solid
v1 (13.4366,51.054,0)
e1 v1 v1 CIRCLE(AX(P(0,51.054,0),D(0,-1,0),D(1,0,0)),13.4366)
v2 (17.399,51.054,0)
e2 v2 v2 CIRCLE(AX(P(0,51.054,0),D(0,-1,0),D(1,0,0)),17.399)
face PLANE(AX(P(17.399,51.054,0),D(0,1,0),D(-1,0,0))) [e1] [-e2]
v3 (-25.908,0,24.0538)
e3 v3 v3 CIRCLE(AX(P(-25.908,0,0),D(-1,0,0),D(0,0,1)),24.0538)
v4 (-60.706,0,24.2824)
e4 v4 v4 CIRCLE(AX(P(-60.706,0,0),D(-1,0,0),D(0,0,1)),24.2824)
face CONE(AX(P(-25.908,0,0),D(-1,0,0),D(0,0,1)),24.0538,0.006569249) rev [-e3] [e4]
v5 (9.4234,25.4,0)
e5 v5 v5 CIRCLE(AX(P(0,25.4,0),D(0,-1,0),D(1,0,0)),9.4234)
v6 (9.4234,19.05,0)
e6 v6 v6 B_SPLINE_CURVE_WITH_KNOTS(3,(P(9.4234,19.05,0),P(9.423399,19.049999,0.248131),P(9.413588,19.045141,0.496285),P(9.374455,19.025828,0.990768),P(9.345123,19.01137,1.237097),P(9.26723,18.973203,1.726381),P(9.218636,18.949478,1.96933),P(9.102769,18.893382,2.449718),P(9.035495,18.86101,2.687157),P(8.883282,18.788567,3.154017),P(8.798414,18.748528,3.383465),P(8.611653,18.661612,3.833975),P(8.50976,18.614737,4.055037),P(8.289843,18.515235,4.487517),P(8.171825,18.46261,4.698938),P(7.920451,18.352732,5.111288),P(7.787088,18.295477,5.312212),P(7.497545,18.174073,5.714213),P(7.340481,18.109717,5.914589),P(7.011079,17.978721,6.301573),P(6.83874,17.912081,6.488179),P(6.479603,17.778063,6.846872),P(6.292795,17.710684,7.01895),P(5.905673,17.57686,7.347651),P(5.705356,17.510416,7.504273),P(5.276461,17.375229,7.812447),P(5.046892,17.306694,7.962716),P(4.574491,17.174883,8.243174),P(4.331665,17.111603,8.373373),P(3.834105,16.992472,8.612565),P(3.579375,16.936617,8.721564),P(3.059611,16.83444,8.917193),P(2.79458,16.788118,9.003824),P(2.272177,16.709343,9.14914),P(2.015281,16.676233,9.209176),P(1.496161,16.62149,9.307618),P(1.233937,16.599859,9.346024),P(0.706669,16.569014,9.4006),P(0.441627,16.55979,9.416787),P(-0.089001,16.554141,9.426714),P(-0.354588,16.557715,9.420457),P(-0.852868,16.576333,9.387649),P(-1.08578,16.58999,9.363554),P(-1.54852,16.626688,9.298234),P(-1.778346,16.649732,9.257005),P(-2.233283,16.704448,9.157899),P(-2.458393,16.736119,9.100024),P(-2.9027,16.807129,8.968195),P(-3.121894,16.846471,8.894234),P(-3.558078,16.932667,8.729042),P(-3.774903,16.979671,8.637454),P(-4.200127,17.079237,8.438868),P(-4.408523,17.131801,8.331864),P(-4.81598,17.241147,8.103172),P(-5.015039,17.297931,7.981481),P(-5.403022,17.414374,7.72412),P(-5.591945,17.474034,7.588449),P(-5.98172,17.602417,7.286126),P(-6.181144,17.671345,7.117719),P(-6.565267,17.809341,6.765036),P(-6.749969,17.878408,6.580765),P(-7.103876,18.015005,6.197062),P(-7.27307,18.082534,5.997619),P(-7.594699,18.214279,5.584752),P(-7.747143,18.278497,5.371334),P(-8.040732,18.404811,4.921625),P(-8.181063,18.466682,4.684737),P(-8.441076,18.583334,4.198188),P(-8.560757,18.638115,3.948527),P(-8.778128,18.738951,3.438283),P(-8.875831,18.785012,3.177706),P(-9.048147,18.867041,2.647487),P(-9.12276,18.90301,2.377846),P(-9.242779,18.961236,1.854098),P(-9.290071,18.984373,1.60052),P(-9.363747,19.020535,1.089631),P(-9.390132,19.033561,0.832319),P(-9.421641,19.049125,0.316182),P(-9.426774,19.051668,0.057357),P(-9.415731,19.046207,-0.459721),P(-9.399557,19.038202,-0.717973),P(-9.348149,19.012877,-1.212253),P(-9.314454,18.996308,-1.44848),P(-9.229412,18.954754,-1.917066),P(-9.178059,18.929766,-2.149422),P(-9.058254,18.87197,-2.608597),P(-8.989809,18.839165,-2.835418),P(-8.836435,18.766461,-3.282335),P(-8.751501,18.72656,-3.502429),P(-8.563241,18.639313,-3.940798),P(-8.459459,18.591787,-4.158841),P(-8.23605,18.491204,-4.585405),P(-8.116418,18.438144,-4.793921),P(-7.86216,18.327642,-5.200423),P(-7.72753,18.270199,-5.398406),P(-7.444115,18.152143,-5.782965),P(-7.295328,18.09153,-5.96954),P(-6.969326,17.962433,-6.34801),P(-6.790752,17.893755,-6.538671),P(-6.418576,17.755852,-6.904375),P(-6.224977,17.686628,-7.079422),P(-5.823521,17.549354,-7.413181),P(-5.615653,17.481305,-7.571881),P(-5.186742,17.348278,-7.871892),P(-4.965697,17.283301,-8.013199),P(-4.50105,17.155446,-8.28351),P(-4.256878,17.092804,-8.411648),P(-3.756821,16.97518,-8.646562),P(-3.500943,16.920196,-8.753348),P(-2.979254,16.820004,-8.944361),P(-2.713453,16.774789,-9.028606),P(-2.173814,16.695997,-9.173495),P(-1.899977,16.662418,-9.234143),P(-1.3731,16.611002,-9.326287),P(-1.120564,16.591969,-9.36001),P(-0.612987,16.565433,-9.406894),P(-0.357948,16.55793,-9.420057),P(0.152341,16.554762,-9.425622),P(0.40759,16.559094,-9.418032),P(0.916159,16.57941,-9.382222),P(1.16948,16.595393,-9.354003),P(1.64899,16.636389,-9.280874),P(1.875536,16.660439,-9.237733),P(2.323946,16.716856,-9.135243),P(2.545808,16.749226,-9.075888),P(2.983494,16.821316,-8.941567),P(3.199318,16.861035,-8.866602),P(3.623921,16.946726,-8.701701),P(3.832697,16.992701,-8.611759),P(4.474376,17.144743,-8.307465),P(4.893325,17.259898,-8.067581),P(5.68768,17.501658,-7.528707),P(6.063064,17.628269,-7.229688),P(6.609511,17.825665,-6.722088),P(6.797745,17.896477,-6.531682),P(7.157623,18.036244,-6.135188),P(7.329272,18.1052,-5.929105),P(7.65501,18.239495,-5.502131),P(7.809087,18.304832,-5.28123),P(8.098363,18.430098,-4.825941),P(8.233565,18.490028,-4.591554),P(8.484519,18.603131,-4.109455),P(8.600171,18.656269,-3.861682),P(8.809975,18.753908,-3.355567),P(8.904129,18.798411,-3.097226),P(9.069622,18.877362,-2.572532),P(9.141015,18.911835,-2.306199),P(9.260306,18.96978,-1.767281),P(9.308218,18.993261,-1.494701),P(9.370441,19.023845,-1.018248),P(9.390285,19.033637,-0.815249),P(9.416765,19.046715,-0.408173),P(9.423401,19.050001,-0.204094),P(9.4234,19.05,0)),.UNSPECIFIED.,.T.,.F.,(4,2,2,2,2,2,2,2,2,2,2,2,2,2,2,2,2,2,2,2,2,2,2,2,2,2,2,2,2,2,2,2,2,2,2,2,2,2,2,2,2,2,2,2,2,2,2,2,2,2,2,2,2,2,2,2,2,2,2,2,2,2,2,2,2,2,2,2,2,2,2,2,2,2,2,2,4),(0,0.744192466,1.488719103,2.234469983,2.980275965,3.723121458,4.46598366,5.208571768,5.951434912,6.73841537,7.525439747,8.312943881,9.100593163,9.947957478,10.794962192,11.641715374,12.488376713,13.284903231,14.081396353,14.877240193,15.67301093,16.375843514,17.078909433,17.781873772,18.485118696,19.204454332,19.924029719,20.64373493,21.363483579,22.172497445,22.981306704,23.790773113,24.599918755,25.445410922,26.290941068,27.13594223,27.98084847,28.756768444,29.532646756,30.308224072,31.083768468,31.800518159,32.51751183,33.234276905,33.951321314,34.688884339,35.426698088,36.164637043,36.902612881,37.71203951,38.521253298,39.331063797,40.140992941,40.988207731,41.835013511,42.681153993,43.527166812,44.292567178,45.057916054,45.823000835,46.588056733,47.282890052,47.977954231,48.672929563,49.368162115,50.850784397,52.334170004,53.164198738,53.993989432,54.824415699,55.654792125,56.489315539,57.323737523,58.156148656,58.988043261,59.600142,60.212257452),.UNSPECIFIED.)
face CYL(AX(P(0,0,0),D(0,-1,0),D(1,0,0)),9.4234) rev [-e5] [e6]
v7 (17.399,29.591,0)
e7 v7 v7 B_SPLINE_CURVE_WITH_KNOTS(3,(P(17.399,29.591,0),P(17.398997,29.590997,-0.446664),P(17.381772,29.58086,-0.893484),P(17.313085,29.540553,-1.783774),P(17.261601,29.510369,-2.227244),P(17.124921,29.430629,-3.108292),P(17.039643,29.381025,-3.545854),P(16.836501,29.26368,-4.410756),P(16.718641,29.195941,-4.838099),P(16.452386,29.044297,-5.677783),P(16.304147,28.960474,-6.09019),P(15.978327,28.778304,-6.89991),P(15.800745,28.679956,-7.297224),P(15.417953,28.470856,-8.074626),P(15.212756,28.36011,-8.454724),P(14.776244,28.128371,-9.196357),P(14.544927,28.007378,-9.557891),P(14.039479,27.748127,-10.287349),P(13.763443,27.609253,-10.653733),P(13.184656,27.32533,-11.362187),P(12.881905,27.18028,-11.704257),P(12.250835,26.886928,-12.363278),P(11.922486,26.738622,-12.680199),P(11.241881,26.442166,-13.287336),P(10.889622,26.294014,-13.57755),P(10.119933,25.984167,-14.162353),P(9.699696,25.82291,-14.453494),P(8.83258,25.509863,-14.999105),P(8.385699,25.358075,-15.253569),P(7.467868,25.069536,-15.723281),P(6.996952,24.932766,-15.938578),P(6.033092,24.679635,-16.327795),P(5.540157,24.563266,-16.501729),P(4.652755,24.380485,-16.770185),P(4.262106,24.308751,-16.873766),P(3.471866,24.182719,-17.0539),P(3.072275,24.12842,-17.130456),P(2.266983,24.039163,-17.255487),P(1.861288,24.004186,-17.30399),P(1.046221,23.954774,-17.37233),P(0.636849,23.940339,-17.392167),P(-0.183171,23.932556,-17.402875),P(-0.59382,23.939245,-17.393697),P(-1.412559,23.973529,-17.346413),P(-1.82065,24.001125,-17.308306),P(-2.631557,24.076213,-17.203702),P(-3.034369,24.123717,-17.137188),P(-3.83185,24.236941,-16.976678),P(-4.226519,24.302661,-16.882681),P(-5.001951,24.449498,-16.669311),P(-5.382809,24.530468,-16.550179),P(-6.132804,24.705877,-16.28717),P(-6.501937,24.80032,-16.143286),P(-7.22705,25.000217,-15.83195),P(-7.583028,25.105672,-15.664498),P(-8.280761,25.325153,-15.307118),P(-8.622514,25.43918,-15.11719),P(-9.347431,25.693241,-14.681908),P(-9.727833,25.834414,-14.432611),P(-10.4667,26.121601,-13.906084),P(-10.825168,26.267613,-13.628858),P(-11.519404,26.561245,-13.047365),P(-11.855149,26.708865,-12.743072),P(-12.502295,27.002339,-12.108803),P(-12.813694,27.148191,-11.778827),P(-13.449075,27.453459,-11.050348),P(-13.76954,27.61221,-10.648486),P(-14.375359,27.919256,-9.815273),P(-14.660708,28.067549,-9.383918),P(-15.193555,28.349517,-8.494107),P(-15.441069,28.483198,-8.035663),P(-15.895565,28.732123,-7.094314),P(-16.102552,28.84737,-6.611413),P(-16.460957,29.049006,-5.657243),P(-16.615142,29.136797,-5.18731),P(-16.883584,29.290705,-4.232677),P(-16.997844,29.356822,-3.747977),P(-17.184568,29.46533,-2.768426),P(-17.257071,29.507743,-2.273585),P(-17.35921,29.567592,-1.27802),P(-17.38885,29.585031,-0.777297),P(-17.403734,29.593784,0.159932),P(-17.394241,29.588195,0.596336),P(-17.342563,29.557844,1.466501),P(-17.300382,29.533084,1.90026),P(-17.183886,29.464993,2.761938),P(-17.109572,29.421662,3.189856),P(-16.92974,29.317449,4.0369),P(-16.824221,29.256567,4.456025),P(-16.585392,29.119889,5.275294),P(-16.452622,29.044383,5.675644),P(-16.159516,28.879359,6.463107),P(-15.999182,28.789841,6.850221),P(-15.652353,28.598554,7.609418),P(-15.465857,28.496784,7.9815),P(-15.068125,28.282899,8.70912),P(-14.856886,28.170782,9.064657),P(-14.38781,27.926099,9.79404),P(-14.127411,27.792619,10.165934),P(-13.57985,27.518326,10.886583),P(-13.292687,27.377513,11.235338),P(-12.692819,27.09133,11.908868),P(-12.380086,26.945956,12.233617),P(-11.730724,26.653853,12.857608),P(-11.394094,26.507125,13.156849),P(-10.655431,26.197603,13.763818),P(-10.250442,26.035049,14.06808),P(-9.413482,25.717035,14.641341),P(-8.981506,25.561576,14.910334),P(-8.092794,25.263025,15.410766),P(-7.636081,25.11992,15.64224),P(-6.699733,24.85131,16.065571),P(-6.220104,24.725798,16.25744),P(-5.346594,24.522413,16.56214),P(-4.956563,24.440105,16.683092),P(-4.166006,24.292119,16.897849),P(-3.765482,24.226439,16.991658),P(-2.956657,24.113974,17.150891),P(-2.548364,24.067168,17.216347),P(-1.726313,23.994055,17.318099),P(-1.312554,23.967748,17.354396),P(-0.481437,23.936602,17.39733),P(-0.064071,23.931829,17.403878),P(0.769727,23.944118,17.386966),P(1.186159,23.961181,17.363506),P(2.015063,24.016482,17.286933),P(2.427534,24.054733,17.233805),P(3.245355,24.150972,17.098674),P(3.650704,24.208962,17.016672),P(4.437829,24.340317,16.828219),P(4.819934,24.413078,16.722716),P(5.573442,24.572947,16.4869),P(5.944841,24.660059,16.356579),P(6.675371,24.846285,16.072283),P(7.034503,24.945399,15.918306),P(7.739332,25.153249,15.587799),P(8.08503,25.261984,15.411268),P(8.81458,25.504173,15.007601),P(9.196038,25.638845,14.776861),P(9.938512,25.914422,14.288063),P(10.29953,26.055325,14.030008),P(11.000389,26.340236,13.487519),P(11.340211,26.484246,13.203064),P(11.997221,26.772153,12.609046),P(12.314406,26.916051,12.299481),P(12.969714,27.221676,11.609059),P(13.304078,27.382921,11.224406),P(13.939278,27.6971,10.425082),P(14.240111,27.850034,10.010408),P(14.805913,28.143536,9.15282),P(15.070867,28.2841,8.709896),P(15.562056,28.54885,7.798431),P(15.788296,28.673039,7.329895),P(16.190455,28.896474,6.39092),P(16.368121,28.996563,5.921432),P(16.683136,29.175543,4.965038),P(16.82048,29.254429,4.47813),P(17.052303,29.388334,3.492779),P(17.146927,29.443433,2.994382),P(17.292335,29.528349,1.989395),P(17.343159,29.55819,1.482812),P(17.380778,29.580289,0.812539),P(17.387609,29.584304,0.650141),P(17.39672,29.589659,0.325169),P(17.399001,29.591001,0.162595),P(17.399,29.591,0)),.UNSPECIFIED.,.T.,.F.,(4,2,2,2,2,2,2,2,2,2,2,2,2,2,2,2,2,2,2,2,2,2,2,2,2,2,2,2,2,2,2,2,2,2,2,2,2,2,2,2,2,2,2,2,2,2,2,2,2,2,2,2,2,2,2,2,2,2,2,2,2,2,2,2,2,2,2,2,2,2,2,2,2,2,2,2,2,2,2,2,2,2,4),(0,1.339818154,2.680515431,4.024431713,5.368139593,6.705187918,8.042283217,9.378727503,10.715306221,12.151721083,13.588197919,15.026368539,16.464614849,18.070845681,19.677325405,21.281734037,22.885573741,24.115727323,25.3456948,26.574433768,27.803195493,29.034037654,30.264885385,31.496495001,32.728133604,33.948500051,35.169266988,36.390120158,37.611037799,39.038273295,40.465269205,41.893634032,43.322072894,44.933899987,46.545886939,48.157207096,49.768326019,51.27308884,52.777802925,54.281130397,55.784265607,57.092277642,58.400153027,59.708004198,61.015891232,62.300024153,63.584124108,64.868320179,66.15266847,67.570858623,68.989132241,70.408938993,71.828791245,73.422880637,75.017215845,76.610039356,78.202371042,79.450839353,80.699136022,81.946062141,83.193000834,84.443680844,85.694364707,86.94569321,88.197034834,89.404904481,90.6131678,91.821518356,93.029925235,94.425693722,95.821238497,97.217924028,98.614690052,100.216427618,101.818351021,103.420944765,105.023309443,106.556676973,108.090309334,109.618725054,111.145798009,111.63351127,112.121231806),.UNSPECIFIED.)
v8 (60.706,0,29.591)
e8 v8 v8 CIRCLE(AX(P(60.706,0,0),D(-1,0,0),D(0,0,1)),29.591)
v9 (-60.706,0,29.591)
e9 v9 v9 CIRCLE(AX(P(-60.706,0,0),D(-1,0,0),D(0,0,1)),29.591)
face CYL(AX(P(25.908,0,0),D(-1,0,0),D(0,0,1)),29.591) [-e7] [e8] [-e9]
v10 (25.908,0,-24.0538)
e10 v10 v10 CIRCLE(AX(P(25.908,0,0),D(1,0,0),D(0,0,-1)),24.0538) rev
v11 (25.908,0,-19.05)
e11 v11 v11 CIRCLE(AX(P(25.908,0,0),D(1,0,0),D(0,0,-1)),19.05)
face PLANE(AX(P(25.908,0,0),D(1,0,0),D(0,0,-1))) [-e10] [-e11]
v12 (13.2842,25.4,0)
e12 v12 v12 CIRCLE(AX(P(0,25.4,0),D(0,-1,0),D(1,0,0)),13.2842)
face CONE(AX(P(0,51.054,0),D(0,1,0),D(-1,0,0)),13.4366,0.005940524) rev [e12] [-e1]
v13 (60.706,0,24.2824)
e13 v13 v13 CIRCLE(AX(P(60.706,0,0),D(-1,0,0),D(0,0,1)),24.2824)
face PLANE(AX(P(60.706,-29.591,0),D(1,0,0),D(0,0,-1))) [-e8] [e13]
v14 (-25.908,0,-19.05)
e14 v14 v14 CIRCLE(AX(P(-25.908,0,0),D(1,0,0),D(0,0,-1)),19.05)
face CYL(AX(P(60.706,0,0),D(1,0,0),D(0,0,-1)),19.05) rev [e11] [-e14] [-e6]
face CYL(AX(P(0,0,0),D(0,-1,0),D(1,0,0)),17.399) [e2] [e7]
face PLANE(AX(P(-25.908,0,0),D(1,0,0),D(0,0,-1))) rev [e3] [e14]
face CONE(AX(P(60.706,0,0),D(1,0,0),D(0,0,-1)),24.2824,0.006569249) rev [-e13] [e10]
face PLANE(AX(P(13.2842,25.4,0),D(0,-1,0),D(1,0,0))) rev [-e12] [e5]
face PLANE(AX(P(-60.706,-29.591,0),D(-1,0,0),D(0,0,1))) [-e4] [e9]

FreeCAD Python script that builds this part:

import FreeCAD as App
import Part
import Sketcher
Q = App.Units.Quantity


def add_polygon(sketch, points):
    """Adds a closed chain of lines whose ends are joined by coincident constraints."""
    first, n = sketch.GeometryCount, len(points)
    for a, b in zip(points, points[1:] + points[:1]):
        sketch.addGeometry(Part.LineSegment(App.Vector(*a, 0), App.Vector(*b, 0)), False)
    for i in range(n):
        sketch.addConstraint(Sketcher.Constraint("Coincident", first + i, 2, first + (i + 1) % n, 1))

doc = App.newDocument("Part")
params = doc.addObject("Spreadsheet::Sheet", "Params")
for row, (alias, value) in enumerate([
    ("sketch1_width", "1.37 in"),
    ("sketch1_height", "0.218 in"),
    ("sketch1_height2", "0.209 in"),
    ("revolution_angle", "360 deg"),
    ("sketch2_height", "1.01 in"),
    ("sketch2_width", "0.162 in"),
    ("sketch2_width2", "0.156 in"),
    ("revolution2_angle", "360 deg"),
    ("sketch3_diameter", "2.33 in"),
    ("pad1_length", "2.04 in"),
    ("sketch4_diameter", "1.37 in"),
    ("pad2_length", "1 in"),
    ("sketch5_width", "2.04 in"),
    ("sketch5_width2", "4.78 in"),
    ("sketch5_height", "0.197 in"),
    ("sketch5_height2", "0.956 in"),
    ("groove_angle", "360 deg"),
    ("sketch6_height", "1 in"),
    ("sketch6_height2", "2.01 in"),
    ("sketch6_width", "0.529 in"),
    ("sketch6_width2", "0.371 in"),
    ("sketch6_width3", "0.152 in"),
    ("groove2_angle", "360 deg"),
], start=1):
    params.set(f"A{row}", alias)
    params.set(f"B{row}", "=" + value)
    params.setAlias(f"B{row}", alias)

body = doc.addObject("PartDesign::Body", "Body")
body.AllowCompound = True

# Sketch on XY plane
sketch1 = doc.addObject("Sketcher::SketchObject", "Sketch")
body.addObject(sketch1)
sketch1.AttachmentSupport = (doc.XY_Plane, [""])
sketch1.MapMode = "FlatFace"
add_polygon(sketch1, [(-60.706, -29.591), (-25.908, -29.591), (-25.908, -24.0538), (-60.706, -24.2824)])  # lines 0-3
add_polygon(sketch1, [(60.706, -24.2824), (25.908, -24.0538), (25.908, -29.591), (60.706, -29.591)])  # lines 4-7
sketch1.addConstraint([
    Sketcher.Constraint("Horizontal", 0),
    Sketcher.Constraint("Vertical", 1),
    Sketcher.Constraint("Vertical", 3),
    Sketcher.Constraint("Vertical", 5),
    Sketcher.Constraint("Horizontal", 6),
    Sketcher.Constraint("Vertical", 7),
    Sketcher.Constraint("Symmetric", 1, 2, 4, 2, -2),
    Sketcher.Constraint("Symmetric", 3, 2, 6, 2, -2),
    Sketcher.Constraint("Horizontal", 2, 2, 7, 2),
    Sketcher.Constraint("DistanceX", 0, 1, 0, 2, Q("1.37 in")),
    Sketcher.Constraint("DistanceY", 1, 1, 1, 2, Q("0.218 in")),
    Sketcher.Constraint("DistanceY", 3, 2, 3, 1, Q("0.209 in")),
    Sketcher.Constraint("DistanceX", 0, 2, -1, 1, Q("1.02 in")),
    Sketcher.Constraint("DistanceY", 0, 2, -1, 1, Q("1.165 in")),
])
sketch1.setExpression("Constraints[17]", "Params.sketch1_width")
sketch1.setExpression("Constraints[18]", "Params.sketch1_height")
sketch1.setExpression("Constraints[19]", "Params.sketch1_height2")
revolution = doc.addObject("PartDesign::Revolution", "Revolution")
body.addObject(revolution)
revolution.Profile = sketch1
revolution.ReferenceAxis = (sketch1, ["H_Axis"])
revolution.setExpression("Angle", "Params.revolution_angle")
body2 = doc.addObject("PartDesign::Body", "Body001")

# Sketch on XY plane
sketch2 = doc.addObject("Sketcher::SketchObject", "Sketch001")
body2.addObject(sketch2)
sketch2.AttachmentSupport = (doc.getObject("XY_Plane001"), [""])
sketch2.MapMode = "FlatFace"
add_polygon(sketch2, [(13.4366, 51.054), (13.2842, 25.4), (17.399, 25.4), (17.399, 51.054)])  # lines 0-3
sketch2.addConstraint([
    Sketcher.Constraint("Horizontal", 1),
    Sketcher.Constraint("Vertical", 2),
    Sketcher.Constraint("Horizontal", 3),
    Sketcher.Constraint("DistanceY", -1, 1, 0, 2, Q("1 in")),
    Sketcher.Constraint("DistanceY", 2, 1, 2, 2, Q("1.01 in")),
    Sketcher.Constraint("DistanceX", 1, 1, 1, 2, Q("0.162 in")),
    Sketcher.Constraint("DistanceX", 3, 2, 3, 1, Q("0.156 in")),
    Sketcher.Constraint("DistanceX", -1, 1, 0, 2, Q("0.523 in")),
])
sketch2.setExpression("Constraints[8]", "Params.sketch2_height")
sketch2.setExpression("Constraints[9]", "Params.sketch2_width")
sketch2.setExpression("Constraints[10]", "Params.sketch2_width2")
revolution2 = doc.addObject("PartDesign::Revolution", "Revolution001")
body2.addObject(revolution2)
revolution2.Profile = sketch2
revolution2.ReferenceAxis = (sketch2, ["V_Axis"])
revolution2.setExpression("Angle", "Params.revolution2_angle")
body.AllowCompound = True
doc.recompute()

boolean = doc.addObject("PartDesign::Boolean", "Boolean")
body.addObject(boolean)
boolean.Type = "Fuse"
boolean.addObjects([body2])

# Sketch on YZ plane
sketch3 = doc.addObject("Sketcher::SketchObject", "Sketch002")
body.addObject(sketch3)
sketch3.AttachmentSupport = (doc.YZ_Plane, [""])
sketch3.MapMode = "FlatFace"
sketch3.AttachmentOffset = App.Placement(App.Vector(0, 0, -1.02 * 25.4), App.Rotation())
sketch3.addGeometry(Part.Circle(App.Vector(0, 0, 0), App.Vector(0, 0, 1), 29.591), False)
sketch3.addConstraint([
    Sketcher.Constraint("Coincident", 0, 3, -1, 1),
    Sketcher.Constraint("Diameter", 0, Q("2.33 in")),
])
sketch3.setExpression("Constraints[1]", "Params.sketch3_diameter")
pad1 = doc.addObject("PartDesign::Pad", "Pad")
body.addObject(pad1)
pad1.Profile = sketch3
pad1.setExpression("Length", "Params.pad1_length")

# Sketch on XZ plane
sketch4 = doc.addObject("Sketcher::SketchObject", "Sketch003")
body.addObject(sketch4)
sketch4.AttachmentSupport = (doc.XZ_Plane, [""])
sketch4.MapMode = "FlatFace"
sketch4.AttachmentOffset = App.Placement(App.Vector(0, 0, -1 * 25.4), App.Rotation())
sketch4.addGeometry(Part.Circle(App.Vector(0, 0, 0), App.Vector(0, 0, 1), 17.399), False)
sketch4.addConstraint([
    Sketcher.Constraint("Coincident", 0, 3, -1, 1),
    Sketcher.Constraint("Diameter", 0, Q("1.37 in")),
])
sketch4.setExpression("Constraints[1]", "Params.sketch4_diameter")
pad2 = doc.addObject("PartDesign::Pad", "Pad001")
body.addObject(pad2)
pad2.Profile = sketch4
pad2.setExpression("Length", "Params.pad2_length")

# Sketch on XY plane
sketch5 = doc.addObject("Sketcher::SketchObject", "Sketch004")
body.addObject(sketch5)
sketch5.AttachmentSupport = (doc.XY_Plane, [""])
sketch5.MapMode = "FlatFace"
add_polygon(sketch5, [(-60.706, -24.2824), (-25.908, -24.0538), (-25.908, -19.05), (25.908, -19.05), (25.908, -24.0538), (60.706, -24.2824), (60.706, 0), (-60.706, 0)])  # lines 0-7
sketch5.addConstraint([
    Sketcher.Constraint("Vertical", 1),
    Sketcher.Constraint("Horizontal", 2),
    Sketcher.Constraint("Vertical", 3),
    Sketcher.Constraint("Vertical", 5),
    Sketcher.Constraint("Horizontal", 6),
    Sketcher.Constraint("Vertical", 7),
    Sketcher.Constraint("Symmetric", 5, 2, 6, 2, -1, 1),
    Sketcher.Constraint("Symmetric", 0, 2, 3, 2, -2),
    Sketcher.Constraint("Horizontal", 4, 2, 7, 2),
    Sketcher.Constraint("DistanceX", 2, 1, 2, 2, Q("2.04 in")),
    Sketcher.Constraint("DistanceX", 6, 2, 6, 1, Q("4.78 in")),
    Sketcher.Constraint("DistanceY", 1, 1, 1, 2, Q("0.197 in")),
    Sketcher.Constraint("DistanceY", 5, 1, 5, 2, Q("0.956 in")),
    Sketcher.Constraint("DistanceY", 1, 2, -1, 1, Q("0.75 in")),
])
sketch5.setExpression("Constraints[17]", "Params.sketch5_width")
sketch5.setExpression("Constraints[18]", "Params.sketch5_width2")
sketch5.setExpression("Constraints[19]", "Params.sketch5_height")
sketch5.setExpression("Constraints[20]", "Params.sketch5_height2")
groove = doc.addObject("PartDesign::Groove", "Groove")
body.addObject(groove)
groove.Profile = sketch5
groove.ReferenceAxis = (sketch5, ["H_Axis"])
groove.setExpression("Angle", "Params.groove_angle")

# Sketch on XY plane
sketch6 = doc.addObject("Sketcher::SketchObject", "Sketch005")
body.addObject(sketch6)
sketch6.AttachmentSupport = (doc.XY_Plane, [""])
sketch6.MapMode = "FlatFace"
add_polygon(sketch6, [(13.2842, 25.4), (13.4366, 51.054), (0, 51.054), (0, 0), (9.4234, 0), (9.4234, 25.4)])  # lines 0-5
sketch6.addConstraint([
    Sketcher.Constraint("Horizontal", 1),
    Sketcher.Constraint("Vertical", 2),
    Sketcher.Constraint("Horizontal", 3),
    Sketcher.Constraint("Vertical", 4),
    Sketcher.Constraint("Horizontal", 5),
    Sketcher.Constraint("Coincident", 2, 2, -1, 1),
    Sketcher.Constraint("DistanceY", 4, 1, 4, 2, Q("1 in")),
    Sketcher.Constraint("DistanceY", 2, 2, 2, 1, Q("2.01 in")),
    Sketcher.Constraint("DistanceX", 1, 2, 1, 1, Q("0.529 in")),
    Sketcher.Constraint("DistanceX", 3, 1, 3, 2, Q("0.371 in")),
    Sketcher.Constraint("DistanceX", 5, 1, 5, 2, Q("0.152 in")),
])
sketch6.setExpression("Constraints[12]", "Params.sketch6_height")
sketch6.setExpression("Constraints[13]", "Params.sketch6_height2")
sketch6.setExpression("Constraints[14]", "Params.sketch6_width")
sketch6.setExpression("Constraints[15]", "Params.sketch6_width2")
sketch6.setExpression("Constraints[16]", "Params.sketch6_width3")
groove2 = doc.addObject("PartDesign::Groove", "Groove001")
body.addObject(groove2)
groove2.Profile = sketch6
groove2.ReferenceAxis = (sketch6, ["V_Axis"])
groove2.setExpression("Angle", "Params.groove2_angle")

doc.recompute()
